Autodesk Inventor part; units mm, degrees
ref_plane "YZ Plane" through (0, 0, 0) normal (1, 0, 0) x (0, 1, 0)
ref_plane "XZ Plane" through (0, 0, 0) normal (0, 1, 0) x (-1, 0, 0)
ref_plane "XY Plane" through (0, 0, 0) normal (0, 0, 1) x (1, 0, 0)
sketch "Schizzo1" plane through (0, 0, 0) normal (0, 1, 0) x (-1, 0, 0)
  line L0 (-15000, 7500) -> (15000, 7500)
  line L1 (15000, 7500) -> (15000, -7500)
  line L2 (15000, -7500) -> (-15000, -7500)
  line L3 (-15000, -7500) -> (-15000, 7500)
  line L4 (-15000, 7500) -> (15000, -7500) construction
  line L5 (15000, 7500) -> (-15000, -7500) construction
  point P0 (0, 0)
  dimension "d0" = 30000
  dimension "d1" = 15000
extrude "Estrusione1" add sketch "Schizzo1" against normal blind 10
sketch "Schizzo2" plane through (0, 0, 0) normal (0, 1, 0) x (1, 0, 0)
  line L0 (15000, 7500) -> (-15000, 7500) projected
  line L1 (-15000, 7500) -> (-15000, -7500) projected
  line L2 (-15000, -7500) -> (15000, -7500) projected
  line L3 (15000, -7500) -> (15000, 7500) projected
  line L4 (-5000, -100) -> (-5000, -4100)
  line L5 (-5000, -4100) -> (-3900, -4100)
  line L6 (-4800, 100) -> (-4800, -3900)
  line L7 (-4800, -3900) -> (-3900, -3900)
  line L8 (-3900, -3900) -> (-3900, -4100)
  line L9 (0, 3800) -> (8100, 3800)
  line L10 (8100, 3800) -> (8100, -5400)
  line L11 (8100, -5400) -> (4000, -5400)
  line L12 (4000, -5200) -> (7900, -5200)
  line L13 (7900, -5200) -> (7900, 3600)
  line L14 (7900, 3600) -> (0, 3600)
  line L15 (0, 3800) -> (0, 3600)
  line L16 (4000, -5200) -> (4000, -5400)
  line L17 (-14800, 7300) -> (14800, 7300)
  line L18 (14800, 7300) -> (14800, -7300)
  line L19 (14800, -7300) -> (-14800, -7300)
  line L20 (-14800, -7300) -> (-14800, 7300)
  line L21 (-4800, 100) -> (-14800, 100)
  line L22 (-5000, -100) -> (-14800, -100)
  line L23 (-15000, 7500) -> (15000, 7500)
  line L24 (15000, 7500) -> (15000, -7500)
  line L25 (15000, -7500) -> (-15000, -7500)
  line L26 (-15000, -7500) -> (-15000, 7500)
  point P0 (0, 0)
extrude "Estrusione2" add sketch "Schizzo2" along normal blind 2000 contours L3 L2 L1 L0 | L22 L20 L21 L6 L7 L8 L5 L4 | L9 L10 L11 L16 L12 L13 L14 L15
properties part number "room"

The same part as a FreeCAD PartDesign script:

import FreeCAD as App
import Part
import Sketcher
from FreeCAD import Vector

doc = App.newDocument("Part")
body = doc.addObject("PartDesign::Body", "Body")

sketch1 = body.newObject("Sketcher::SketchObject", "Sketch")
sketch1.AttachmentSupport = (doc.getObject("XZ_Plane"), [""])
sketch1.MapMode = "FlatFace"
sketch1.addGeometry([
    Part.LineSegment(Vector(-15000, 7500, 0), Vector(15000, 7500, 0)),
    Part.LineSegment(Vector(15000, 7500, 0), Vector(15000, -7500, 0)),
    Part.LineSegment(Vector(15000, -7500, 0), Vector(-15000, -7500, 0)),
    Part.LineSegment(Vector(-15000, -7500, 0), Vector(-15000, 7500, 0)),
], False)
sketch1.addConstraint([
    Sketcher.Constraint("Coincident", 0, 2, 1, 1),
    Sketcher.Constraint("Coincident", 1, 2, 2, 1),
    Sketcher.Constraint("Coincident", 2, 2, 3, 1),
    Sketcher.Constraint("Coincident", 3, 2, 0, 1),
    Sketcher.Constraint("Horizontal", 0),
    Sketcher.Constraint("Vertical", 1),
    Sketcher.Constraint("Horizontal", 2),
    Sketcher.Constraint("Vertical", 3),
    Sketcher.Constraint("Symmetric", 0, 2, 2, 2, -1, 1),
    Sketcher.Constraint("DistanceX", 0, 1, 0, 2, 30000.0),
    Sketcher.Constraint("DistanceY", 1, 2, 1, 1, 15000.0),
])
pad1 = body.newObject("PartDesign::Pad", "Pad")
pad1.Profile = sketch1
pad1.Length = 10

sketch2 = body.newObject("Sketcher::SketchObject", "Sketch001")
sketch2.AttachmentSupport = (doc.getObject("XZ_Plane"), [""])
sketch2.MapMode = "FlatFace"
sketch2.addGeometry([
    Part.LineSegment(Vector(15000, 7500, 0), Vector(15000, -7500, 0)),
    Part.LineSegment(Vector(15000, -7500, 0), Vector(-15000, -7500, 0)),
    Part.LineSegment(Vector(-15000, -7500, 0), Vector(-15000, 7500, 0)),
    Part.LineSegment(Vector(-15000, 7500, 0), Vector(15000, 7500, 0)),
    Part.LineSegment(Vector(-14800, 7300, 0), Vector(-14800, 100, 0)),
    Part.LineSegment(Vector(-14800, 100, 0), Vector(-5000, 100, 0)),
    Part.LineSegment(Vector(-5000, 100, 0), Vector(-5000, 4100, 0)),
    Part.LineSegment(Vector(-5000, 4100, 0), Vector(-3900, 4100, 0)),
    Part.LineSegment(Vector(-3900, 4100, 0), Vector(-3900, 3900, 0)),
    Part.LineSegment(Vector(-3900, 3900, 0), Vector(-4800, 3900, 0)),
    Part.LineSegment(Vector(-4800, 3900, 0), Vector(-4800, -100, 0)),
    Part.LineSegment(Vector(-4800, -100, 0), Vector(-14800, -100, 0)),
    Part.LineSegment(Vector(-14800, -100, 0), Vector(-14800, -7300, 0)),
    Part.LineSegment(Vector(-14800, -7300, 0), Vector(14800, -7300, 0)),
    Part.LineSegment(Vector(14800, -7300, 0), Vector(14800, 7300, 0)),
    Part.LineSegment(Vector(14800, 7300, 0), Vector(-14800, 7300, 0)),
    Part.LineSegment(Vector(8100, -3800, 0), Vector(0, -3800, 0)),
    Part.LineSegment(Vector(0, -3800, 0), Vector(0, -3600, 0)),
    Part.LineSegment(Vector(0, -3600, 0), Vector(7900, -3600, 0)),
    Part.LineSegment(Vector(7900, -3600, 0), Vector(7900, 5200, 0)),
    Part.LineSegment(Vector(7900, 5200, 0), Vector(4000, 5200, 0)),
    Part.LineSegment(Vector(4000, 5200, 0), Vector(4000, 5400, 0)),
    Part.LineSegment(Vector(4000, 5400, 0), Vector(8100, 5400, 0)),
    Part.LineSegment(Vector(8100, 5400, 0), Vector(8100, -3800, 0)),
], False)
sketch2.addConstraint([
    Sketcher.Constraint("Coincident", 0, 2, 1, 1),
    Sketcher.Constraint("Coincident", 1, 2, 2, 1),
    Sketcher.Constraint("Coincident", 2, 2, 3, 1),
    Sketcher.Constraint("Coincident", 3, 2, 0, 1),
    Sketcher.Constraint("Coincident", 4, 2, 5, 1),
    Sketcher.Constraint("Coincident", 5, 2, 6, 1),
    Sketcher.Constraint("Coincident", 6, 2, 7, 1),
    Sketcher.Constraint("Coincident", 7, 2, 8, 1),
    Sketcher.Constraint("Coincident", 8, 2, 9, 1),
    Sketcher.Constraint("Coincident", 9, 2, 10, 1),
    Sketcher.Constraint("Coincident", 10, 2, 11, 1),
    Sketcher.Constraint("Coincident", 11, 2, 12, 1),
    Sketcher.Constraint("Coincident", 12, 2, 13, 1),
    Sketcher.Constraint("Coincident", 13, 2, 14, 1),
    Sketcher.Constraint("Coincident", 14, 2, 15, 1),
    Sketcher.Constraint("Coincident", 15, 2, 4, 1),
    Sketcher.Constraint("Coincident", 16, 2, 17, 1),
    Sketcher.Constraint("Coincident", 17, 2, 18, 1),
    Sketcher.Constraint("Coincident", 18, 2, 19, 1),
    Sketcher.Constraint("Coincident", 19, 2, 20, 1),
    Sketcher.Constraint("Coincident", 20, 2, 21, 1),
    Sketcher.Constraint("Coincident", 21, 2, 22, 1),
    Sketcher.Constraint("Coincident", 22, 2, 23, 1),
    Sketcher.Constraint("Coincident", 23, 2, 16, 1),
    Sketcher.Constraint("Vertical", 0),
    Sketcher.Constraint("Horizontal", 1),
    Sketcher.Constraint("Vertical", 2),
    Sketcher.Constraint("Horizontal", 3),
    Sketcher.Constraint("Vertical", 4),
    Sketcher.Constraint("Horizontal", 5),
    Sketcher.Constraint("Vertical", 6),
    Sketcher.Constraint("Horizontal", 7),
    Sketcher.Constraint("Vertical", 8),
    Sketcher.Constraint("Horizontal", 9),
    Sketcher.Constraint("Vertical", 10),
    Sketcher.Constraint("Horizontal", 11),
    Sketcher.Constraint("Vertical", 12),
    Sketcher.Constraint("Horizontal", 13),
    Sketcher.Constraint("Vertical", 14),
    Sketcher.Constraint("Horizontal", 15),
    Sketcher.Constraint("Horizontal", 16),
    Sketcher.Constraint("Vertical", 17),
    Sketcher.Constraint("Horizontal", 18),
    Sketcher.Constraint("Vertical", 19),
    Sketcher.Constraint("Horizontal", 20),
    Sketcher.Constraint("Vertical", 21),
    Sketcher.Constraint("Horizontal", 22),
    Sketcher.Constraint("Vertical", 23),
    Sketcher.Constraint("Symmetric", 0, 2, 2, 2, -1, 1),
    Sketcher.Constraint("Symmetric", 12, 2, 14, 2, -1, 1),
    Sketcher.Constraint("Symmetric", 4, 2, 11, 2, -1),
    Sketcher.Constraint("PointOnObject", 16, 2, -2),
    Sketcher.Constraint("Equal", 6, 10),
    Sketcher.Constraint("Equal", 8, 17),
    Sketcher.Constraint("Equal", 17, 21),
    Sketcher.Constraint("DistanceX", 1, 2, 1, 1, 30000.0),
    Sketcher.Constraint("DistanceX", 5, 1, 5, 2, 9800.0),
    Sketcher.Constraint("DistanceX", 7, 1, 7, 2, 1100.0),
    Sketcher.Constraint("DistanceX", 9, 2, 9, 1, 900.0),
    Sketcher.Constraint("DistanceX", 13, 1, 13, 2, 29600.0),
    Sketcher.Constraint("DistanceX", 16, 2, 16, 1, 8100.0),
    Sketcher.Constraint("DistanceX", 18, 1, 18, 2, 7900.0),
    Sketcher.Constraint("DistanceX", 20, 2, 20, 1, 3900.0),
    Sketcher.Constraint("DistanceY", 0, 2, 0, 1, 15000.0),
    Sketcher.Constraint("DistanceY", 4, 2, 4, 1, 7200.0),
    Sketcher.Constraint("DistanceY", 6, 1, 6, 2, 4000.0),
    Sketcher.Constraint("DistanceY", 8, 2, 8, 1, 200.0),
    Sketcher.Constraint("DistanceY", 19, 1, 19, 2, 8800.0),
    Sketcher.Constraint("DistanceY", 16, 2, -1, 1, 3800.0),
])
pad2 = body.newObject("PartDesign::Pad", "Pad001")
pad2.Profile = sketch2
pad2.Length = 2000
pad2.Reversed = True

doc.recompute()
